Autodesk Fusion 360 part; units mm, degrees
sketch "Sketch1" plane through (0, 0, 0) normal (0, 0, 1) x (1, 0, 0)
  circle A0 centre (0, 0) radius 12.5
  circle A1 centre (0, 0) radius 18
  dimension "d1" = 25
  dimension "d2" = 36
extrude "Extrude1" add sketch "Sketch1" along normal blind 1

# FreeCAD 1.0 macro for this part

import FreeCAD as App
import Part
import Sketcher
from FreeCAD import Vector
Q = App.Units.Quantity

doc = App.newDocument("Part")
body = doc.addObject("PartDesign::Body", "Body")

sketch1 = body.newObject("Sketcher::SketchObject", "Sketch")
sketch1.AttachmentSupport = (doc.getObject("XY_Plane"), [""])
sketch1.MapMode = "FlatFace"
sketch1.addGeometry(Part.Circle(Vector(0, 0, 0), Vector(0, 0, 1), 18), False)
sketch1.addGeometry(Part.Circle(Vector(0, 0, 0), Vector(0, 0, 1), 12), False)
sketch1.addConstraint(Sketcher.Constraint("Coincident", 0, 3, -1, 1))
sketch1.addConstraint(Sketcher.Constraint("Coincident", 1, 3, -1, 1))
sketch1.addConstraint(Sketcher.Constraint("Diameter", 0, Q("36 mm")))
sketch1.addConstraint(Sketcher.Constraint("Diameter", 1, Q("25 mm")))
pad1 = body.newObject("PartDesign::Pad", "Pad")
pad1.Profile = sketch1
pad1.Length = 1

doc.recompute()
